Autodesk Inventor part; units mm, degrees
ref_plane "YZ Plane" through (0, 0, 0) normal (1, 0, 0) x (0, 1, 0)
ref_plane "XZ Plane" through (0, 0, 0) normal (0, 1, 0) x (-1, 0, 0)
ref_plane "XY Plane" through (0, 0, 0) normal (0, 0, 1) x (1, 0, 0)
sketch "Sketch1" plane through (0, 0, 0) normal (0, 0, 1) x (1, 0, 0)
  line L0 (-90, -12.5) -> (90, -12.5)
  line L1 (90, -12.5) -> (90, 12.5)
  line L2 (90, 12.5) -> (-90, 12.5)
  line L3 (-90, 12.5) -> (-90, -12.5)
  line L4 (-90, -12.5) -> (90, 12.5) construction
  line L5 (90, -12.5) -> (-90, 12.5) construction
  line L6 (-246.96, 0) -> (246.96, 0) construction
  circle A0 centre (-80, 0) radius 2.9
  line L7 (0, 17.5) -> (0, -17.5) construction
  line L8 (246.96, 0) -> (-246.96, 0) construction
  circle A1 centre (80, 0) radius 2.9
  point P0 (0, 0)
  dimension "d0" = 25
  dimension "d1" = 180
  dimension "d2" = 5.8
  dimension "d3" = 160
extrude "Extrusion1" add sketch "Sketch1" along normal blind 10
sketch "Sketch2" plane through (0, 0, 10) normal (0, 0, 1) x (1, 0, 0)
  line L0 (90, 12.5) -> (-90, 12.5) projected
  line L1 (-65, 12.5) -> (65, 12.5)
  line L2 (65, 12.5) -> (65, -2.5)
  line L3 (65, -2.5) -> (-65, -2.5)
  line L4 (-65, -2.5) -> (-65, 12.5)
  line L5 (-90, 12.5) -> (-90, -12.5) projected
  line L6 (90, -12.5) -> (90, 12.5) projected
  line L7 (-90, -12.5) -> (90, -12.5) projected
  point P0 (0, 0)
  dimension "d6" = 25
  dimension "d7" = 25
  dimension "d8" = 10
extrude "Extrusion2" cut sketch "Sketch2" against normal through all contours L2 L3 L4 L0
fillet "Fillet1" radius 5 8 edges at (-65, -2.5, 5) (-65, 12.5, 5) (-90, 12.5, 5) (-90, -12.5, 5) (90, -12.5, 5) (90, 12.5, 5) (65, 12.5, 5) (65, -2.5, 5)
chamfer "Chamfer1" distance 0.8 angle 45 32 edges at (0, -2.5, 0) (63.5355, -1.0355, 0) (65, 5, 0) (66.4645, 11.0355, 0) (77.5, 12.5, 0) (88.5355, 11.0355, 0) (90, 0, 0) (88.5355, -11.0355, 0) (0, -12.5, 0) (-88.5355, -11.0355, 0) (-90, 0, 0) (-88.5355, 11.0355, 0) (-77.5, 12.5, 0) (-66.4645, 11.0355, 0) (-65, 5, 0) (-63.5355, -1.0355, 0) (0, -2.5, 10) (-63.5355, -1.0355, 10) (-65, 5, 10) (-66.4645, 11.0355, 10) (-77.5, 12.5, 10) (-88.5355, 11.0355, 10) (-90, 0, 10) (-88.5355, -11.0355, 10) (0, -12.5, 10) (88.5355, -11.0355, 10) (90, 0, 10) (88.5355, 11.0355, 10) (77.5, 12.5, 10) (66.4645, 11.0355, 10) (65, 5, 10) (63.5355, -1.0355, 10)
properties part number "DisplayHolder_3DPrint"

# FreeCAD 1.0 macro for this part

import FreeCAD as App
import Part
import Sketcher

V = App.Vector
Q = App.Units.Quantity


def edges_at(feature, points):
    """Names of the edges that pass closest to the given points."""
    edges = feature.Shape.Edges
    near = lambda p: min(range(len(edges)), key=lambda i: edges[i].distToShape(Part.Vertex(*p))[0])
    return sorted({f"Edge{near(p) + 1}" for p in points})

doc = App.newDocument("Part")
params = doc.addObject("Spreadsheet::Sheet", "Params")
for row, (alias, value) in enumerate([
    ("sketch1_diameter", "5.8 mm"),
    ("sketch1_width", "180 mm"),
    ("sketch1_height", "25 mm"),
    ("pad1_length", "10 mm"),
    ("sketch2_width", "130 mm"),
    ("sketch2_height", "15 mm"),
    ("fillet_radius", "5 mm"),
    ("chamfer_size", "0.8 mm"),
], start=1):
    params.set(f"A{row}", alias)
    params.set(f"B{row}", "=" + value)
    params.setAlias(f"B{row}", alias)

body = doc.addObject("PartDesign::Body", "Body")

# Sketch on XY plane
sketch1 = body.newObject("Sketcher::SketchObject", "Sketch")
sketch1.AttachmentSupport = (doc.getObject("XY_Plane"), [""])
sketch1.MapMode = "FlatFace"
sketch1.addGeometry(Part.LineSegment(V(-90, 12.5, 0), V(-90, -12.5, 0)), False)
sketch1.addGeometry(Part.LineSegment(V(-90, -12.5, 0), V(90, -12.5, 0)), False)
sketch1.addGeometry(Part.LineSegment(V(90, -12.5, 0), V(90, 12.5, 0)), False)
sketch1.addGeometry(Part.LineSegment(V(90, 12.5, 0), V(-90, 12.5, 0)), False)
sketch1.addGeometry(Part.Circle(V(-80, 0, 0), V(0, 0, 1), 2.9), False)
sketch1.addGeometry(Part.Circle(V(80, 0, 0), V(0, 0, 1), 2.9), False)
sketch1.addConstraint(Sketcher.Constraint("Coincident", 0, 2, 1, 1))
sketch1.addConstraint(Sketcher.Constraint("Coincident", 1, 2, 2, 1))
sketch1.addConstraint(Sketcher.Constraint("Coincident", 2, 2, 3, 1))
sketch1.addConstraint(Sketcher.Constraint("Coincident", 3, 2, 0, 1))
sketch1.addConstraint(Sketcher.Constraint("Vertical", 0))
sketch1.addConstraint(Sketcher.Constraint("Horizontal", 1))
sketch1.addConstraint(Sketcher.Constraint("Vertical", 2))
sketch1.addConstraint(Sketcher.Constraint("Horizontal", 3))
sketch1.addConstraint(Sketcher.Constraint("Equal", 4, 5))
sketch1.addConstraint(Sketcher.Constraint("Symmetric", 4, 3, 5, 3, -1, 1))
sketch1.addConstraint(Sketcher.Constraint("Symmetric", 0, 2, 2, 2, -1, 1))
sketch1.addConstraint(Sketcher.Constraint("PointOnObject", 4, 3, -1))
sketch1.addConstraint(Sketcher.Constraint("Diameter", 4, Q("5.8 mm")))
sketch1.addConstraint(Sketcher.Constraint("DistanceX", 1, 1, 1, 2, Q("180 mm")))
sketch1.addConstraint(Sketcher.Constraint("DistanceY", 0, 2, 0, 1, Q("25 mm")))
sketch1.addConstraint(Sketcher.Constraint("DistanceX", 4, 3, 5, 3, Q("160 mm")))
sketch1.setExpression("Constraints[12]", "Params.sketch1_diameter")
sketch1.setExpression("Constraints[13]", "Params.sketch1_width")
sketch1.setExpression("Constraints[14]", "Params.sketch1_height")
pad1 = body.newObject("PartDesign::Pad", "Pad")
pad1.Profile = sketch1
pad1.setExpression("Length", "Params.pad1_length")

# Sketch on XY plane
sketch2 = body.newObject("Sketcher::SketchObject", "Sketch001")
sketch2.AttachmentSupport = (doc.getObject("XY_Plane"), [""])
sketch2.MapMode = "FlatFace"
sketch2.AttachmentOffset = App.Placement(V(0, 0, 10), App.Rotation())
sketch2.addGeometry(Part.LineSegment(V(65, -2, 0), V(65, 12, 0)), False)
sketch2.addGeometry(Part.LineSegment(V(65, 12, 0), V(-65, 12, 0)), False)
sketch2.addGeometry(Part.LineSegment(V(-65, 12, 0), V(-65, -2, 0)), False)
sketch2.addGeometry(Part.LineSegment(V(-65, -2, 0), V(65, -2, 0)), False)
sketch2.addConstraint(Sketcher.Constraint("Coincident", 0, 2, 1, 1))
sketch2.addConstraint(Sketcher.Constraint("Coincident", 1, 2, 2, 1))
sketch2.addConstraint(Sketcher.Constraint("Coincident", 2, 2, 3, 1))
sketch2.addConstraint(Sketcher.Constraint("Coincident", 3, 2, 0, 1))
sketch2.addConstraint(Sketcher.Constraint("Vertical", 0))
sketch2.addConstraint(Sketcher.Constraint("Horizontal", 1))
sketch2.addConstraint(Sketcher.Constraint("Vertical", 2))
sketch2.addConstraint(Sketcher.Constraint("Horizontal", 3))
sketch2.addConstraint(Sketcher.Constraint("DistanceX", 1, 2, 1, 1, Q("130 mm")))
sketch2.addConstraint(Sketcher.Constraint("DistanceY", 0, 1, 0, 2, Q("15 mm")))
sketch2.addConstraint(Sketcher.Constraint("DistanceX", -1, 1, 0, 2, Q("65 mm")))
sketch2.addConstraint(Sketcher.Constraint("DistanceY", -1, 1, 0, 2, Q("12.5 mm")))
sketch2.setExpression("Constraints[8]", "Params.sketch2_width")
sketch2.setExpression("Constraints[9]", "Params.sketch2_height")
pocket1 = body.newObject("PartDesign::Pocket", "Pocket")
pocket1.Profile = sketch2
pocket1.Type = "ThroughAll"
doc.recompute()

fillet = body.newObject("PartDesign::Fillet", "Fillet")
fillet.Base = (pocket1, edges_at(pocket1, [
    (-65, -2.5, 5),
    (-65, 12.5, 5),
    (-90, 12.5, 5),
    (-90, -12.5, 5),
    (90, -12.5, 5),
    (90, 12.5, 5),
    (65, 12.5, 5),
    (65, -2.5, 5),
]))
fillet.setExpression("Radius", "Params.fillet_radius")
doc.recompute()

chamfer = body.newObject("PartDesign::Chamfer", "Chamfer")
chamfer.Base = (fillet, edges_at(fillet, [
    (0, -2.5, 0),
    (63.535, -1.036, 0),
    (65, 5, 0),
    (66.465, 11.036, 0),
    (77.5, 12.5, 0),
    (88.535, 11.036, 0),
    (90, 0, 0),
    (88.535, -11.036, 0),
    (0, -12.5, 0),
    (-88.535, -11.036, 0),
    (-90, 0, 0),
    (-88.535, 11.036, 0),
    (-77.5, 12.5, 0),
    (-66.465, 11.036, 0),
    (-65, 5, 0),
    (-63.535, -1.036, 0),
    (0, -2.5, 10),
    (-63.535, -1.036, 10),
    (-65, 5, 10),
    (-66.465, 11.036, 10),
    (-77.5, 12.5, 10),
    (-88.535, 11.036, 10),
    (-90, 0, 10),
    (-88.535, -11.036, 10),
    (0, -12.5, 10),
    (88.535, -11.036, 10),
    (90, 0, 10),
    (88.535, 11.036, 10),
    (77.5, 12.5, 10),
    (66.465, 11.036, 10),
    (65, 5, 10),
    (63.535, -1.036, 10),
]))
chamfer.setExpression("Size", "Params.chamfer_size")

doc.recompute()
